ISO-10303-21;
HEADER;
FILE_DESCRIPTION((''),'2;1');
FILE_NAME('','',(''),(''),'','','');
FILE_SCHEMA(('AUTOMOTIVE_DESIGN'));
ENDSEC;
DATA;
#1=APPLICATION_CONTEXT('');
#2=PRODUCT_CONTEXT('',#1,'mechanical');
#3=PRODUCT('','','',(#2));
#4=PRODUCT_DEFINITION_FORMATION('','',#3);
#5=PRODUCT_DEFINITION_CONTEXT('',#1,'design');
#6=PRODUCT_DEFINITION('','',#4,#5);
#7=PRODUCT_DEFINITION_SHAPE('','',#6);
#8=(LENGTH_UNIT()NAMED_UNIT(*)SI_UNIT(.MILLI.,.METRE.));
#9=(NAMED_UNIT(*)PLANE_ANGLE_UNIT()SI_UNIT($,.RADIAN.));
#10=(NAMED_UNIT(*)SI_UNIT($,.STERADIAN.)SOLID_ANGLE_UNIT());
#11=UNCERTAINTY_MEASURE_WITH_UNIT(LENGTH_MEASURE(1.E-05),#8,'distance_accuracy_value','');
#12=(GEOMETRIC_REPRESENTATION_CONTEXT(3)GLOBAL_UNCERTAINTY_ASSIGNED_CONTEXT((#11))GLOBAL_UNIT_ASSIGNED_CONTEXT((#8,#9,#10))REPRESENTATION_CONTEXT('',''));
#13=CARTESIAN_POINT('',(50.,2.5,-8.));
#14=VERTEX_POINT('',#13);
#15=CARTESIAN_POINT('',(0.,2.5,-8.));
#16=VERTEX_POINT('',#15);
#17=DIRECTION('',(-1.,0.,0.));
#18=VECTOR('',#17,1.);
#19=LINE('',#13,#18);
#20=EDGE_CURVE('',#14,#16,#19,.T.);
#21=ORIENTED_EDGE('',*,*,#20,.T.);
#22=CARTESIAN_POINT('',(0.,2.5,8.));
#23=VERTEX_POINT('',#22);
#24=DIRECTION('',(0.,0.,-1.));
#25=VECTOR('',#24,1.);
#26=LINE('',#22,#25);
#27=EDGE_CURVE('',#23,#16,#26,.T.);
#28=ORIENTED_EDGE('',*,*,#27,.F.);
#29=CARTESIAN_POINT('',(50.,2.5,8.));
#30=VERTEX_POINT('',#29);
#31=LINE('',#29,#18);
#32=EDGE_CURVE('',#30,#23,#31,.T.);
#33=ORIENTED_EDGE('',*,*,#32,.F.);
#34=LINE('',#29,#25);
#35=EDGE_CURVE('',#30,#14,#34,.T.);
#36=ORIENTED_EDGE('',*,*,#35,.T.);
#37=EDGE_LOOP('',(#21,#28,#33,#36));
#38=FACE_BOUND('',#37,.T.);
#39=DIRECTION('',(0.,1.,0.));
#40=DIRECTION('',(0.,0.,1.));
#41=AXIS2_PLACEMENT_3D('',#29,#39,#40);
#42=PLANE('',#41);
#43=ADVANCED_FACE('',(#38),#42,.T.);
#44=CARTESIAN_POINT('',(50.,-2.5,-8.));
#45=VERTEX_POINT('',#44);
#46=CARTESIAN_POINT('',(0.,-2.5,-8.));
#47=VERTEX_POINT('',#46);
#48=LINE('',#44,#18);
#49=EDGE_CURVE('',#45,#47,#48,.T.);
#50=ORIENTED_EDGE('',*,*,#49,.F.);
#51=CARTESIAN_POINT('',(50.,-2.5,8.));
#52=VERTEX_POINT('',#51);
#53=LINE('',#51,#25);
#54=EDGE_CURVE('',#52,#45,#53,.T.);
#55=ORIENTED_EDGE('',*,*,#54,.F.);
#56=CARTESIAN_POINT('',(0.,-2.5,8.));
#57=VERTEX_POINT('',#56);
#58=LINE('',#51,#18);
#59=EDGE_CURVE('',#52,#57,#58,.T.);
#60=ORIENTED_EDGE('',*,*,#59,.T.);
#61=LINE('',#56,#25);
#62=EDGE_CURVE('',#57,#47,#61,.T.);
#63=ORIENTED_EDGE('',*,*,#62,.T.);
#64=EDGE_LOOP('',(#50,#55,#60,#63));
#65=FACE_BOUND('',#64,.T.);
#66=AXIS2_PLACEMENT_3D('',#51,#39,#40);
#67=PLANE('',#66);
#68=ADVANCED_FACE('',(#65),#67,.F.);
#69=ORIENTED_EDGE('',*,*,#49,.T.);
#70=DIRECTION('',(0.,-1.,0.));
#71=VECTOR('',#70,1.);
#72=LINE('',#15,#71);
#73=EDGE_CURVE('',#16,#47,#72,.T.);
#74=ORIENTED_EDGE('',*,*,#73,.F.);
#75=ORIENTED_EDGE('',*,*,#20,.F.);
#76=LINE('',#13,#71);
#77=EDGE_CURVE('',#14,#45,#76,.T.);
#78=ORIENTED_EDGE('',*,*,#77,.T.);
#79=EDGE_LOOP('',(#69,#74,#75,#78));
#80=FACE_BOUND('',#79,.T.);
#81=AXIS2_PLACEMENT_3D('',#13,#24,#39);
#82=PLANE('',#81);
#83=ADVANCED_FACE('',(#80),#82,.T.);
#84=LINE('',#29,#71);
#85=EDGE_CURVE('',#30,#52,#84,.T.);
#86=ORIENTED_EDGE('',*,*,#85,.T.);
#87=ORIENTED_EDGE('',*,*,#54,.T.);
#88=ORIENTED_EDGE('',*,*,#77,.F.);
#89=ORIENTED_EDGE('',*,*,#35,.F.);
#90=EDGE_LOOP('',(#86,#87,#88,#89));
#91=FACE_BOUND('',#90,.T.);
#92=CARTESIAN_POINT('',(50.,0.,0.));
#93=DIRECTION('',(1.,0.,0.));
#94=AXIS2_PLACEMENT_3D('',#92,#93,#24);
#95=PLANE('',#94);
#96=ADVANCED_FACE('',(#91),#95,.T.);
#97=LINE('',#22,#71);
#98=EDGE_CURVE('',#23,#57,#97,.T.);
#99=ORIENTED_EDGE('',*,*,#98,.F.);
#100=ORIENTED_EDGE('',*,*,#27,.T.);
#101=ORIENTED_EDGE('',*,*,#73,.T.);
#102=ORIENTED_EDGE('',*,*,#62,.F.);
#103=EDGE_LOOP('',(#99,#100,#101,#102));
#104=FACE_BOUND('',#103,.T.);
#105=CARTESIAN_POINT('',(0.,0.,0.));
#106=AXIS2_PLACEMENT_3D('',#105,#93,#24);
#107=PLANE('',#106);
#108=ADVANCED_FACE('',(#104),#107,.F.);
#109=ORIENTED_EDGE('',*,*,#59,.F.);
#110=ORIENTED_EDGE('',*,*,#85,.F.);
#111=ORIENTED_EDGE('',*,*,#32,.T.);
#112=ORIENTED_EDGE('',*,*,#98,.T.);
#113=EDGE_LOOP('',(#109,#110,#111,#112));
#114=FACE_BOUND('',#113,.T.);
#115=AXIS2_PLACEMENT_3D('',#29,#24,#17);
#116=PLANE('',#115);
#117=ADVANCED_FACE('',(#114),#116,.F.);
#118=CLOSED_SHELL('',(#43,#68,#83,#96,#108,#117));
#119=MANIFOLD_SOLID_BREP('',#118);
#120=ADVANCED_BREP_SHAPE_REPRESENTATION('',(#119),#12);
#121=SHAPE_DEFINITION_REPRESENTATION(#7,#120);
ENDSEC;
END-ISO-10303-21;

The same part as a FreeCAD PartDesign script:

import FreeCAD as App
import Part
import Sketcher
Q = App.Units.Quantity

doc = App.newDocument("Part")
params = doc.addObject("Spreadsheet::Sheet", "Params")
for row, (alias, value) in enumerate([
    ("sketch1_width", "5 mm"),
    ("sketch1_height", "16 mm"),
    ("pad1_length", "50 mm"),
], start=1):
    params.set(f"A{row}", alias)
    params.set(f"B{row}", "=" + value)
    params.setAlias(f"B{row}", alias)

body = doc.addObject("PartDesign::Body", "Body")

# Sketch on YZ plane
sketch1 = doc.addObject("Sketcher::SketchObject", "Sketch")
body.addObject(sketch1)
sketch1.AttachmentSupport = (doc.YZ_Plane, [""])
sketch1.MapMode = "FlatFace"
sketch1.addGeometry([
    Part.LineSegment(App.Vector(2, 8, 0), App.Vector(-2, 8, 0)),
    Part.LineSegment(App.Vector(-2, 8, 0), App.Vector(-2, -8, 0)),
    Part.LineSegment(App.Vector(-2, -8, 0), App.Vector(2, -8, 0)),
    Part.LineSegment(App.Vector(2, -8, 0), App.Vector(2, 8, 0)),
], False)
sketch1.addConstraint([
    Sketcher.Constraint("Coincident", 0, 2, 1, 1),
    Sketcher.Constraint("Coincident", 1, 2, 2, 1),
    Sketcher.Constraint("Coincident", 2, 2, 3, 1),
    Sketcher.Constraint("Coincident", 3, 2, 0, 1),
    Sketcher.Constraint("Horizontal", 0),
    Sketcher.Constraint("Vertical", 1),
    Sketcher.Constraint("Horizontal", 2),
    Sketcher.Constraint("Vertical", 3),
    Sketcher.Constraint("Symmetric", 0, 2, 2, 2, -1, 1),
    Sketcher.Constraint("DistanceX", 0, 2, 0, 1, Q("5 mm")),
    Sketcher.Constraint("DistanceY", 1, 2, 1, 1, Q("16 mm")),
])
sketch1.setExpression("Constraints[9]", "Params.sketch1_width")
sketch1.setExpression("Constraints[10]", "Params.sketch1_height")
pad1 = doc.addObject("PartDesign::Pad", "Pad")
body.addObject(pad1)
pad1.Profile = sketch1
pad1.setExpression("Length", "Params.pad1_length")

doc.recompute()
